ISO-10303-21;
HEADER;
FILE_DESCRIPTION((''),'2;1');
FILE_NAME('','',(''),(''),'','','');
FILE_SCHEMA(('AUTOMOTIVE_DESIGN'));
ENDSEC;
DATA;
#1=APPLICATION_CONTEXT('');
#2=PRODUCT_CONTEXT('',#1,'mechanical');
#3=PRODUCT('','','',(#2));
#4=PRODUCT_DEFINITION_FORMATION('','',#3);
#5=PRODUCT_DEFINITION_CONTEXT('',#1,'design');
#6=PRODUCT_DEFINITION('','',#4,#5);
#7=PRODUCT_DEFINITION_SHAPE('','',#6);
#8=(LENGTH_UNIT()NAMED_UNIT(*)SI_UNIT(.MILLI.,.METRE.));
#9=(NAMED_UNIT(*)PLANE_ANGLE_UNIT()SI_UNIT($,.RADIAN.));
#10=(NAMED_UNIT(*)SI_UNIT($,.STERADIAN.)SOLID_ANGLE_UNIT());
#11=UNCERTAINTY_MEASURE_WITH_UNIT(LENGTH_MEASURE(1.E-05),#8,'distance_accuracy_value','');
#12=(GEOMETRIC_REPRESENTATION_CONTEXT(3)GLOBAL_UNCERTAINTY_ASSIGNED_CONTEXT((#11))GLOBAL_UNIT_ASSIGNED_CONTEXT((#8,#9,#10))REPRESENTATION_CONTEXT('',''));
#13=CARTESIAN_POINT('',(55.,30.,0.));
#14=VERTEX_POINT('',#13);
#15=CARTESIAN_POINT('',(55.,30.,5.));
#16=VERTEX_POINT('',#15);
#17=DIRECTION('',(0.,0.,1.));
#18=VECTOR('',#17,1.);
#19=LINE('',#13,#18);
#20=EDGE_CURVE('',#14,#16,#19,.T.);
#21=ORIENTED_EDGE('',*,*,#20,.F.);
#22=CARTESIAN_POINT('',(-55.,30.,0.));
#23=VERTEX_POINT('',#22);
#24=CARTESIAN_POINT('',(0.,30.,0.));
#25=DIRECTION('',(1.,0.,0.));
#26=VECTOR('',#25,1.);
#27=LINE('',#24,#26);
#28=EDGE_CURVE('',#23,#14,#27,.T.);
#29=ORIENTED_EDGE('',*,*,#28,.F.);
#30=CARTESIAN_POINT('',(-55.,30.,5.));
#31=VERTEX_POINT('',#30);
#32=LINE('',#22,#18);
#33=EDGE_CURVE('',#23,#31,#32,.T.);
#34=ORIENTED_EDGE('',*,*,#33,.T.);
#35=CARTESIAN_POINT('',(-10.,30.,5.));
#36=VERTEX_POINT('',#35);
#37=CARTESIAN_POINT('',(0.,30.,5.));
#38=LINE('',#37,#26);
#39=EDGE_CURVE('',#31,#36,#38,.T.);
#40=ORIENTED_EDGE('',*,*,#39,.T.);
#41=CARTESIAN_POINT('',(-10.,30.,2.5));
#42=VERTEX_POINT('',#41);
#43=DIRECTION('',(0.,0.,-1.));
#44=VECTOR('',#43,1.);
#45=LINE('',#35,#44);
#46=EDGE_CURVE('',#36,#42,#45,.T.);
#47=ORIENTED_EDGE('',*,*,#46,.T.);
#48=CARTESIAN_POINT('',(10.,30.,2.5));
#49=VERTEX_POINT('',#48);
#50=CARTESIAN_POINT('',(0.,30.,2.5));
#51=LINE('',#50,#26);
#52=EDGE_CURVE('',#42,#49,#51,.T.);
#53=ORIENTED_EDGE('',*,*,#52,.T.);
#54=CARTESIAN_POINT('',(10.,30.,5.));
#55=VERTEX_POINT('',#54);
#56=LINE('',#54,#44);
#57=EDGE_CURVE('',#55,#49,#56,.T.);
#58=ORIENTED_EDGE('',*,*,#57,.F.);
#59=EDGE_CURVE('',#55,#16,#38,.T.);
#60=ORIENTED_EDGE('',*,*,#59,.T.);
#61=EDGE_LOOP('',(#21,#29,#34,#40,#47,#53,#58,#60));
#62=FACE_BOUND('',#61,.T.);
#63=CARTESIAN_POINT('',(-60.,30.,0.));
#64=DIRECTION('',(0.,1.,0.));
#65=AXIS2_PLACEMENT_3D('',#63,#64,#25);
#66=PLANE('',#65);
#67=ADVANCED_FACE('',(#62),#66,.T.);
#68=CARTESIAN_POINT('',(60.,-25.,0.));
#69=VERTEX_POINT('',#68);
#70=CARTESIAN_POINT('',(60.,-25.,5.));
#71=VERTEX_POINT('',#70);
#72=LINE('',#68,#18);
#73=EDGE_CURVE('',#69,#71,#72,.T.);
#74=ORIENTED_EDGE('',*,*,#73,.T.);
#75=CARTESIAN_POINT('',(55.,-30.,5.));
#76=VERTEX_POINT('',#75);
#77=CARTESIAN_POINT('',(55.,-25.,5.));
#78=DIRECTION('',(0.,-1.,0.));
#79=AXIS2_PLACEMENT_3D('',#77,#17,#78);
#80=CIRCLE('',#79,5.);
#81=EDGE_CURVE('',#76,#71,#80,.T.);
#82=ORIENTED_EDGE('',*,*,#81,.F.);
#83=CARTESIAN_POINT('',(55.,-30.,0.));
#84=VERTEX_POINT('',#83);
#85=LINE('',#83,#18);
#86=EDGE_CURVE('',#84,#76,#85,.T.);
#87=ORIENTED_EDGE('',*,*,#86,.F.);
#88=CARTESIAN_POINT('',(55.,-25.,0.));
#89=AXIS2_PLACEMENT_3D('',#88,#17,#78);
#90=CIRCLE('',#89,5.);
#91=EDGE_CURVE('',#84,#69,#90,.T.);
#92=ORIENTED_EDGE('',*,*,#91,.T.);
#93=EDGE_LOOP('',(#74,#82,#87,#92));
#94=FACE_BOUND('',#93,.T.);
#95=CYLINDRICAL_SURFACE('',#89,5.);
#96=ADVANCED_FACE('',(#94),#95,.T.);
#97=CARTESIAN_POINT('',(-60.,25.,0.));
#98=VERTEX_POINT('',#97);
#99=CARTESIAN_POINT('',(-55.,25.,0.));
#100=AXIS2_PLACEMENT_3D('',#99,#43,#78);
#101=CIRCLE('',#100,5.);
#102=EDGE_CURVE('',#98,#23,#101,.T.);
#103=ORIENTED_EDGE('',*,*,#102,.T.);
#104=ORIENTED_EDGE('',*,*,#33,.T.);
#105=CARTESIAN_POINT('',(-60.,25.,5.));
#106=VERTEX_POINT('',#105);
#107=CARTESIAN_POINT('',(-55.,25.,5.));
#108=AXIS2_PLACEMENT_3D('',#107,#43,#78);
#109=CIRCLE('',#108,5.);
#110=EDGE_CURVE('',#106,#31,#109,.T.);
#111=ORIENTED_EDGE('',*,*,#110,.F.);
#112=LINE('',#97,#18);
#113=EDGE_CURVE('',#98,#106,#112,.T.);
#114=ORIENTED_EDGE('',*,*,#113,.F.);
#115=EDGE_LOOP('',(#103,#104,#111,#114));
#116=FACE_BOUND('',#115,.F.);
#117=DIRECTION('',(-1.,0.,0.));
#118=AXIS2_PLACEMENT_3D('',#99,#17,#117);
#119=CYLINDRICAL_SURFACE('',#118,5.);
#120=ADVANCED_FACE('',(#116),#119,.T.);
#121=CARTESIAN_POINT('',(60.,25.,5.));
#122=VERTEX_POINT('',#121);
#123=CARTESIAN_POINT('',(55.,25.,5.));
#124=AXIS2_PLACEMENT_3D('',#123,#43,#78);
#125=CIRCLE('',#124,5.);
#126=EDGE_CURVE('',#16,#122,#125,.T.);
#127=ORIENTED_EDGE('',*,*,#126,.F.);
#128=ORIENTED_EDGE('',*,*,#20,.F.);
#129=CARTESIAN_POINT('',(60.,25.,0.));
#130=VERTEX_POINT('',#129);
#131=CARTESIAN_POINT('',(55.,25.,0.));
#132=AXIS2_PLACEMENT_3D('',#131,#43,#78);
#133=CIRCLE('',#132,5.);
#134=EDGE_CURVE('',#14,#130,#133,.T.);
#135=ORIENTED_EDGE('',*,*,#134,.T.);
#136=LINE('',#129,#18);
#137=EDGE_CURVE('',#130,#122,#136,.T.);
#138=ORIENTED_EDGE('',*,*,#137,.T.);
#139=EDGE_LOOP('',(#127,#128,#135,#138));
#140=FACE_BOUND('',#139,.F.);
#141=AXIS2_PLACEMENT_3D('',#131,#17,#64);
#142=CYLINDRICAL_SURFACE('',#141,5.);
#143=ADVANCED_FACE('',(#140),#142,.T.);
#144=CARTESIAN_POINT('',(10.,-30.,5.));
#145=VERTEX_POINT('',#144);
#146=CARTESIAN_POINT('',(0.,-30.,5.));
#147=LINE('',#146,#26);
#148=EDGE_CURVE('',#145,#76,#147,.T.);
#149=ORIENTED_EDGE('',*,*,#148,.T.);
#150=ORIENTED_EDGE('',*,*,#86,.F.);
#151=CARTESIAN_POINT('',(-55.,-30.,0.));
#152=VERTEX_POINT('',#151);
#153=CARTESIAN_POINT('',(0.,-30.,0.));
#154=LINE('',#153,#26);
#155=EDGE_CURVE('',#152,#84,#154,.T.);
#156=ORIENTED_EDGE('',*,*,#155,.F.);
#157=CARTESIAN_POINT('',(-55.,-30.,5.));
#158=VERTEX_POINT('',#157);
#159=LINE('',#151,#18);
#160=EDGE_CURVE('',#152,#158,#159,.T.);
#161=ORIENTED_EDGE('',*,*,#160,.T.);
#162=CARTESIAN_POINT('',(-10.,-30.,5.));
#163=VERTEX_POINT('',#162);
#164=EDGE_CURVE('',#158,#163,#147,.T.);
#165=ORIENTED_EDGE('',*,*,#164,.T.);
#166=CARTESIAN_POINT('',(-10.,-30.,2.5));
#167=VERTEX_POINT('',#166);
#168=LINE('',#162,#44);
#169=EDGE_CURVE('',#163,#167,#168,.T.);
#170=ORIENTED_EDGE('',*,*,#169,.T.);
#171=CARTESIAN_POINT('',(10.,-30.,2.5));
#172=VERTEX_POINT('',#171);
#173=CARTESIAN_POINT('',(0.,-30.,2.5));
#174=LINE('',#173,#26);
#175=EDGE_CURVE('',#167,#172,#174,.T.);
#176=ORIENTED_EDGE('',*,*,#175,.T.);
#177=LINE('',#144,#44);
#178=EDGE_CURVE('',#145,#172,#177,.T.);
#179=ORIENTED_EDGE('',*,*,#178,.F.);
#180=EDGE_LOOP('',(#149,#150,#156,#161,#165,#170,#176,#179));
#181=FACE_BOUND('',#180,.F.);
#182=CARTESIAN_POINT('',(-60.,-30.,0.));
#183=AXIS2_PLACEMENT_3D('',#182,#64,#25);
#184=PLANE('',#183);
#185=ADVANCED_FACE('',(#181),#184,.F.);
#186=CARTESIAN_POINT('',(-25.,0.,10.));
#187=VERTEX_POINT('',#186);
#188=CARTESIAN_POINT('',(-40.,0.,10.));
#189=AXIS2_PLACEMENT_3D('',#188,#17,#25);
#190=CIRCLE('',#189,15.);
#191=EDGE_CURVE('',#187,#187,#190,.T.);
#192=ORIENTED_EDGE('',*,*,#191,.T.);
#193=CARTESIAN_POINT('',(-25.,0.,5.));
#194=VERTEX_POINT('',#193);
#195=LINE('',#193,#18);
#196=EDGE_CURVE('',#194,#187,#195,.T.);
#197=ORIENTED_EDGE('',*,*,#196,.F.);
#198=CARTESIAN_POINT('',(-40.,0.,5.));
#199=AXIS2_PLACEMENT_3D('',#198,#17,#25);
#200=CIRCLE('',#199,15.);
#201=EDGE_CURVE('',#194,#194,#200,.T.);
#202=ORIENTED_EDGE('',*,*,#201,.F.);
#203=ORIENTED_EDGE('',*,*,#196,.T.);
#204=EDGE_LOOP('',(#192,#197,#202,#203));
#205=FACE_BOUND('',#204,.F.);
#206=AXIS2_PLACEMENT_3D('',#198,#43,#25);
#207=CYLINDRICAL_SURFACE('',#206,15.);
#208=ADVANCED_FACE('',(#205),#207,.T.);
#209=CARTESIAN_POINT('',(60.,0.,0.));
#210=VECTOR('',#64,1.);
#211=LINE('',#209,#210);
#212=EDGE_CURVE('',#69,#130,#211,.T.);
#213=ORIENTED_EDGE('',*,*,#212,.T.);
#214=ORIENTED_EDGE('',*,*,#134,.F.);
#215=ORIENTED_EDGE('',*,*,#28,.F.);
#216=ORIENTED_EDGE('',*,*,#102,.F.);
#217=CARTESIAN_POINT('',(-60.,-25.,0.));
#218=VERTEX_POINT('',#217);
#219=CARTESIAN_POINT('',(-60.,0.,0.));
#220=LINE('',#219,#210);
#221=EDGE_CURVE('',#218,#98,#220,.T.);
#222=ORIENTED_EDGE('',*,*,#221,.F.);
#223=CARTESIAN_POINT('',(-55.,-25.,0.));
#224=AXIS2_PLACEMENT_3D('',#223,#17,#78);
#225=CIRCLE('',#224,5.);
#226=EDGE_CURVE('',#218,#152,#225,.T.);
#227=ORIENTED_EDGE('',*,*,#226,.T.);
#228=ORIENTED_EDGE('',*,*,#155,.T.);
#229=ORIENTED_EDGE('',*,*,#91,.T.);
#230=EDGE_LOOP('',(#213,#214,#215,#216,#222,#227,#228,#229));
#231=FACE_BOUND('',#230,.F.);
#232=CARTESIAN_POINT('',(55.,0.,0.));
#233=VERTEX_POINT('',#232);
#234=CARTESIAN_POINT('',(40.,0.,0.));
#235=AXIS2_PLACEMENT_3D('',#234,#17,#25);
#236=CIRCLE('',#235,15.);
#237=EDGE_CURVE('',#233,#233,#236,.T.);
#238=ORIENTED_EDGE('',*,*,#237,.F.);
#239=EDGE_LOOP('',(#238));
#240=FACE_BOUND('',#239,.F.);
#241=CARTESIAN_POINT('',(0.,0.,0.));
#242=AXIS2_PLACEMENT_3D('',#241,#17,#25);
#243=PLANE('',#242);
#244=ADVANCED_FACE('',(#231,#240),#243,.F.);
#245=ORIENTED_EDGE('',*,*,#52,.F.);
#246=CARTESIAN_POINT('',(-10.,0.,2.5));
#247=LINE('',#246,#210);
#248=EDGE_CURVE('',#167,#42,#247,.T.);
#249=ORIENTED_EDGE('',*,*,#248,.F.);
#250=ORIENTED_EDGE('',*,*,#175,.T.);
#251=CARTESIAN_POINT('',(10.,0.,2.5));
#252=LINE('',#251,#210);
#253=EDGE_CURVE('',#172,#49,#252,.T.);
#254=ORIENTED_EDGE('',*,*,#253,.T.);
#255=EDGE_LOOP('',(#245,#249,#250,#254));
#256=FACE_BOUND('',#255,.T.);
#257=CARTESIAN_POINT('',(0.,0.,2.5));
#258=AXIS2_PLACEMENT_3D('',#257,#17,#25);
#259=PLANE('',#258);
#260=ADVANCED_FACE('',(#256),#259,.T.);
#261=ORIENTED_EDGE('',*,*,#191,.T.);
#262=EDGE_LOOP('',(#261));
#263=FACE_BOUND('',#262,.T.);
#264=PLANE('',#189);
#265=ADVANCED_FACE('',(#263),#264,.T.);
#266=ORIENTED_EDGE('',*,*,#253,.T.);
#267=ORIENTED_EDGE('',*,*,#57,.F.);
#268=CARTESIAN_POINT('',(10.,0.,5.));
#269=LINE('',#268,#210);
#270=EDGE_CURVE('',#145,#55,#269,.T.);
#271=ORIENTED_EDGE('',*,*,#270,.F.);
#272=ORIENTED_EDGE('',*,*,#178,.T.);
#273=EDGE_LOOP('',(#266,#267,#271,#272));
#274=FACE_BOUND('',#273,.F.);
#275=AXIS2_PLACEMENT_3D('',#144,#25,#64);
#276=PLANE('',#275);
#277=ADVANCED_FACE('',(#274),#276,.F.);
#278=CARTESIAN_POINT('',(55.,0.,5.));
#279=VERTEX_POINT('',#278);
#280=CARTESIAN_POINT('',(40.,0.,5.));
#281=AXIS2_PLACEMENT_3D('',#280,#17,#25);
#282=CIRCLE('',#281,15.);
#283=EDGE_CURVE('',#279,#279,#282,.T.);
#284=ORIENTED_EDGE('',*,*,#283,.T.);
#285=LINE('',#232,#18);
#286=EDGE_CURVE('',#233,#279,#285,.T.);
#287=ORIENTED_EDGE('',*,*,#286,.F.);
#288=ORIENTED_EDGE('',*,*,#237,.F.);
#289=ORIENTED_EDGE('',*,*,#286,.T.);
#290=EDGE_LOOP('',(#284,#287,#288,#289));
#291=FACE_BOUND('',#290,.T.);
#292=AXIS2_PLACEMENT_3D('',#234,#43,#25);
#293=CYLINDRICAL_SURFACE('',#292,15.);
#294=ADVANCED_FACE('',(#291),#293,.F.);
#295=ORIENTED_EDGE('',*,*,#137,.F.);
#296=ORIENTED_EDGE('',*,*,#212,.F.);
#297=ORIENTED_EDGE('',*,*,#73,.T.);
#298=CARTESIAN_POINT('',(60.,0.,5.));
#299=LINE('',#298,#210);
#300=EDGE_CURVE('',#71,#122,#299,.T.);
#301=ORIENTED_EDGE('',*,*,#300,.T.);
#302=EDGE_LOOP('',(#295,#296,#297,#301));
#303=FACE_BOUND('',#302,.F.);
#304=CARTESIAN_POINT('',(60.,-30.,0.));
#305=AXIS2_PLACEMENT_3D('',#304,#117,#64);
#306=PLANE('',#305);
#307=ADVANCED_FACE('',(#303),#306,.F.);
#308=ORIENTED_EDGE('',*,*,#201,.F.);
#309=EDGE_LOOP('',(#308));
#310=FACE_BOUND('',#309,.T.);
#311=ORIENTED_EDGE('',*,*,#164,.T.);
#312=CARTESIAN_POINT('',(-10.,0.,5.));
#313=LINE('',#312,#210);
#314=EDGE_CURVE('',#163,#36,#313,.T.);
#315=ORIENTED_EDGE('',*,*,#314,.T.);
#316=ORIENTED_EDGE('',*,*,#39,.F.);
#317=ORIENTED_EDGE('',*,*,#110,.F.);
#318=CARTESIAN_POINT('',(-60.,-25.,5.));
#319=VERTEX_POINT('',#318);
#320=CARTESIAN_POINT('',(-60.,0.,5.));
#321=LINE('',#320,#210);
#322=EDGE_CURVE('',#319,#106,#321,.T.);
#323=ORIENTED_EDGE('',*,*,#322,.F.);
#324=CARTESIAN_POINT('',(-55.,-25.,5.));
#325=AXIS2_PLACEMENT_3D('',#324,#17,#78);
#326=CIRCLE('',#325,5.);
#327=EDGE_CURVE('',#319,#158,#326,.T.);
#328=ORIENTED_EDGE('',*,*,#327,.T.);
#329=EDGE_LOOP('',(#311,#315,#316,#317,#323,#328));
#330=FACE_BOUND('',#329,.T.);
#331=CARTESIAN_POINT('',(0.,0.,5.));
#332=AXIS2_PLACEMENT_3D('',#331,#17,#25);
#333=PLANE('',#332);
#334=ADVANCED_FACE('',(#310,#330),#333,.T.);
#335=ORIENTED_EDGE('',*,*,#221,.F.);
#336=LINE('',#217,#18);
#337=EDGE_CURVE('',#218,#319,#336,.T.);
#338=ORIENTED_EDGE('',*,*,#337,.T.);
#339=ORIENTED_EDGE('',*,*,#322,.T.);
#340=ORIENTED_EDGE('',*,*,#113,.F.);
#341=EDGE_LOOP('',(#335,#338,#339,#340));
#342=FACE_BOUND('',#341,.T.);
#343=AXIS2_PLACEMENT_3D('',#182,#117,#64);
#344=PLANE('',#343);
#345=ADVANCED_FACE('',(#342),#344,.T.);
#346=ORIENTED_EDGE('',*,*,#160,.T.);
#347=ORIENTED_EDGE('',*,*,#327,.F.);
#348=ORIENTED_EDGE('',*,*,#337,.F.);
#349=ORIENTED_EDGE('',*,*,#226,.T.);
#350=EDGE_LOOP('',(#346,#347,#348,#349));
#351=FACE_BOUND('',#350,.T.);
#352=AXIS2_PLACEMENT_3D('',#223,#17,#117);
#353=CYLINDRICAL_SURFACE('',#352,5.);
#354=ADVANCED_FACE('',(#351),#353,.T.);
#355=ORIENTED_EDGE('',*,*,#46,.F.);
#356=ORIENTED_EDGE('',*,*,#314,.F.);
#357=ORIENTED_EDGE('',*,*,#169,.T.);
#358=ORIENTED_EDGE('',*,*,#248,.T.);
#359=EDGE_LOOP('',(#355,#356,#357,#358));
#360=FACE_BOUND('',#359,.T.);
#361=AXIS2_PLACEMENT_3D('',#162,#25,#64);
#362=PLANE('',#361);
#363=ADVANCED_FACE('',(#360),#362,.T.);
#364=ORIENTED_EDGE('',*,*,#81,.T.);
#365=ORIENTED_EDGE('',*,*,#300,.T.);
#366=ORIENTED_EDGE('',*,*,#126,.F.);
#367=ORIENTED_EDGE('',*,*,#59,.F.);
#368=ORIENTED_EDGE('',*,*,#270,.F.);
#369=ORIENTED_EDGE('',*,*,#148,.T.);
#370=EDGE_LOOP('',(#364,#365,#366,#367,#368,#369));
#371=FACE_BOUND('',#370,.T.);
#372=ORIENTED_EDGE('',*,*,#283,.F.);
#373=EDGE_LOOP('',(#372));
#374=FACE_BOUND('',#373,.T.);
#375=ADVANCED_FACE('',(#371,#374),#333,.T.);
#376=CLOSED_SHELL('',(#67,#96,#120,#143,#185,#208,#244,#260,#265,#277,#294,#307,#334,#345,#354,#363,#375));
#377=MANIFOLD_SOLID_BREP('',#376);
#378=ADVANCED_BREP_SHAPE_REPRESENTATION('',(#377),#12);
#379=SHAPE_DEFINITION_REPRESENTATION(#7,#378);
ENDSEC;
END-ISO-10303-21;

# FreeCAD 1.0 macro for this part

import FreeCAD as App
import Part
import Sketcher

V = App.Vector


def edges_at(feature, points):
    """Names of the edges that pass closest to the given points."""
    edges = feature.Shape.Edges
    near = lambda p: min(range(len(edges)), key=lambda i: edges[i].distToShape(Part.Vertex(*p))[0])
    return sorted({f"Edge{near(p) + 1}" for p in points})

doc = App.newDocument("Part")
params = doc.addObject("Spreadsheet::Sheet", "Params")
for row, (alias, value) in enumerate([
    ("sketch1_diameter", "30 mm"),
    ("sketch1_width", "120 mm"),
    ("sketch1_height", "60 mm"),
    ("pad1_length", "5 mm"),
    ("fillet_radius", "5 mm"),
    ("sketch2_diameter", "30 mm"),
    ("pad2_length", "5 mm"),
    ("sketch3_width", "20 mm"),
    ("sketch3_height", "60 mm"),
    ("pocket1_length", "2.5 mm"),
], start=1):
    params.set(f"A{row}", alias)
    params.set(f"B{row}", "=" + value)
    params.setAlias(f"B{row}", alias)

body = doc.addObject("PartDesign::Body", "Body")

# Sketch on XY plane
sketch1 = doc.addObject("Sketcher::SketchObject", "Sketch")
body.addObject(sketch1)
sketch1.AttachmentSupport = (doc.XY_Plane, [""])
sketch1.MapMode = "FlatFace"
sketch1.addGeometry([
    Part.LineSegment(V(-60, 30, 0), V(-60, -30, 0)),  # 0
    Part.LineSegment(V(-60, -30, 0), V(60, -30, 0)),  # 1
    Part.LineSegment(V(60, -30, 0), V(60, 30, 0)),  # 2
    Part.LineSegment(V(60, 30, 0), V(-60, 30, 0)),  # 3
    Part.Circle(V(40, 0, 0), V(0, 0, 1), 15),  # 4
], False)
sketch1.addConstraint([
    Sketcher.Constraint("Coincident", 0, 2, 1, 1),
    Sketcher.Constraint("Coincident", 1, 2, 2, 1),
    Sketcher.Constraint("Coincident", 2, 2, 3, 1),
    Sketcher.Constraint("Coincident", 3, 2, 0, 1),
    Sketcher.Constraint("Vertical", 0),
    Sketcher.Constraint("Horizontal", 1),
    Sketcher.Constraint("Vertical", 2),
    Sketcher.Constraint("Horizontal", 3),
    Sketcher.Constraint("Symmetric", 0, 2, 2, 2, -1, 1),
    Sketcher.Constraint("PointOnObject", 4, 3, -1),
    Sketcher.Constraint("Diameter", 4, 30.0),
    Sketcher.Constraint("DistanceX", 1, 1, 1, 2, 120.0),
    Sketcher.Constraint("DistanceY", 0, 2, 0, 1, 60.0),
    Sketcher.Constraint("DistanceX", -1, 1, 4, 3, 40.0),
])
sketch1.setExpression("Constraints[10]", "Params.sketch1_diameter")
sketch1.setExpression("Constraints[11]", "Params.sketch1_width")
sketch1.setExpression("Constraints[12]", "Params.sketch1_height")
pad1 = doc.addObject("PartDesign::Pad", "Pad")
body.addObject(pad1)
pad1.Profile = sketch1
pad1.setExpression("Length", "Params.pad1_length")
doc.recompute()

fillet = doc.addObject("PartDesign::Fillet", "Fillet")
body.addObject(fillet)
fillet.Base = (pad1, edges_at(pad1, [
    (60, 30, 2.5),
    (60, -30, 2.5),
    (-60, 30, 2.5),
    (-60, -30, 2.5),
]))
fillet.setExpression("Radius", "Params.fillet_radius")

# Sketch on XY plane
sketch2 = doc.addObject("Sketcher::SketchObject", "Sketch001")
body.addObject(sketch2)
sketch2.AttachmentSupport = (doc.XY_Plane, [""])
sketch2.MapMode = "FlatFace"
sketch2.AttachmentOffset = App.Placement(V(0, 0, 5), App.Rotation())
sketch2.addGeometry(Part.Circle(V(-40, 0, 0), V(0, 0, 1), 15), False)
sketch2.addConstraint([
    Sketcher.Constraint("PointOnObject", 0, 3, -1),
    Sketcher.Constraint("Diameter", 0, 30.0),
    Sketcher.Constraint("DistanceX", 0, 3, -1, 1, 40.0),
])
sketch2.setExpression("Constraints[1]", "Params.sketch2_diameter")
pad2 = doc.addObject("PartDesign::Pad", "Pad001")
body.addObject(pad2)
pad2.Profile = sketch2
pad2.setExpression("Length", "Params.pad2_length")

# Sketch on XY plane
sketch3 = doc.addObject("Sketcher::SketchObject", "Sketch002")
body.addObject(sketch3)
sketch3.AttachmentSupport = (doc.XY_Plane, [""])
sketch3.MapMode = "FlatFace"
sketch3.AttachmentOffset = App.Placement(V(0, 0, 5), App.Rotation())
sketch3.addGeometry([
    Part.LineSegment(V(-10, 30, 0), V(-10, -30, 0)),
    Part.LineSegment(V(-10, -30, 0), V(10, -30, 0)),
    Part.LineSegment(V(10, -30, 0), V(10, 30, 0)),
    Part.LineSegment(V(10, 30, 0), V(-10, 30, 0)),
], False)
sketch3.addConstraint([
    Sketcher.Constraint("Coincident", 0, 2, 1, 1),
    Sketcher.Constraint("Coincident", 1, 2, 2, 1),
    Sketcher.Constraint("Coincident", 2, 2, 3, 1),
    Sketcher.Constraint("Coincident", 3, 2, 0, 1),
    Sketcher.Constraint("Vertical", 0),
    Sketcher.Constraint("Horizontal", 1),
    Sketcher.Constraint("Vertical", 2),
    Sketcher.Constraint("Horizontal", 3),
    Sketcher.Constraint("Symmetric", 0, 2, 2, 2, -1, 1),
    Sketcher.Constraint("DistanceX", 1, 1, 1, 2, 20.0),
    Sketcher.Constraint("DistanceY", 0, 2, 0, 1, 60.0),
])
sketch3.setExpression("Constraints[9]", "Params.sketch3_width")
sketch3.setExpression("Constraints[10]", "Params.sketch3_height")
pocket1 = doc.addObject("PartDesign::Pocket", "Pocket")
body.addObject(pocket1)
pocket1.Profile = sketch3
pocket1.setExpression("Length", "Params.pocket1_length")

doc.recompute()
